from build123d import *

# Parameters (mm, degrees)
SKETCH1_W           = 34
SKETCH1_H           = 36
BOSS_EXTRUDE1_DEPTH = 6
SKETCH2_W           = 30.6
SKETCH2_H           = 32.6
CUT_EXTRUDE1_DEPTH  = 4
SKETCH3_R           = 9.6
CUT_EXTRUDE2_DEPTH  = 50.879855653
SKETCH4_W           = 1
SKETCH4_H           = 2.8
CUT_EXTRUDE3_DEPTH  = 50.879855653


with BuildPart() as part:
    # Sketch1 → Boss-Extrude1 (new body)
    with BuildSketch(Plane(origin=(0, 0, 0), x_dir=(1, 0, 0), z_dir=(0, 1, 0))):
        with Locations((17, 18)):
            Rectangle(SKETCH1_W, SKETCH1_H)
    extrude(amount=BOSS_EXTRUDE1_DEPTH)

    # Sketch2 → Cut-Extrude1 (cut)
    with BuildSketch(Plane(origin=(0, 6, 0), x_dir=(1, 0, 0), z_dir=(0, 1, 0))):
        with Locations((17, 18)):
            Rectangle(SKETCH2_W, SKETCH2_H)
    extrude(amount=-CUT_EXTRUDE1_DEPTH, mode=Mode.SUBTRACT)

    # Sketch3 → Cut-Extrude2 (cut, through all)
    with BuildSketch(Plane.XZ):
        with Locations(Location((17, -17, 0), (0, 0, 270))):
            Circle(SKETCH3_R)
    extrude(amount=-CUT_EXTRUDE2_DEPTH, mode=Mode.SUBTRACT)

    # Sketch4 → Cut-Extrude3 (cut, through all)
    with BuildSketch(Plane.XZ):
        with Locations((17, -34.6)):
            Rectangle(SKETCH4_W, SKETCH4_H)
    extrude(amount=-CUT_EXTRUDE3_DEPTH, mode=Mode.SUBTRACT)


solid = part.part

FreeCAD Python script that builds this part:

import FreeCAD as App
import Part
import Sketcher

V = App.Vector


def add_polygon(sketch, points):
    """Adds a closed chain of lines whose ends are joined by coincident constraints."""
    first, n = sketch.GeometryCount, len(points)
    for a, b in zip(points, points[1:] + points[:1]):
        sketch.addGeometry(Part.LineSegment(App.Vector(*a, 0), App.Vector(*b, 0)), False)
    for i in range(n):
        sketch.addConstraint(Sketcher.Constraint("Coincident", first + i, 2, first + (i + 1) % n, 1))

doc = App.newDocument("Part")
body = doc.addObject("PartDesign::Body", "Body")

sketch1 = body.newObject("Sketcher::SketchObject", "Sketch")
sketch1.AttachmentSupport = (doc.getObject("XZ_Plane"), [""])
sketch1.MapMode = "FlatFace"
add_polygon(sketch1, [(0, -36), (0, 0), (34, 0), (34, -36)])
sketch1.addConstraint([
    Sketcher.Constraint("Vertical", 0),
    Sketcher.Constraint("Horizontal", 1),
    Sketcher.Constraint("Vertical", 2),
    Sketcher.Constraint("Horizontal", 3),
    Sketcher.Constraint("Coincident", 0, 2, -1, 1),
    Sketcher.Constraint("DistanceX", 1, 1, 1, 2, 34.0),
    Sketcher.Constraint("DistanceY", 0, 1, 0, 2, 36.0),
])
pad1 = body.newObject("PartDesign::Pad", "Pad")
pad1.Profile = sketch1
pad1.Length = 6
pad1.Reversed = True

sketch2 = body.newObject("Sketcher::SketchObject", "Sketch001")
sketch2.AttachmentSupport = (doc.getObject("XZ_Plane"), [""])
sketch2.MapMode = "FlatFace"
sketch2.AttachmentOffset = App.Placement(V(0, 0, -6), App.Rotation())
add_polygon(sketch2, [(1.7, -34.3), (1.7, -1.7), (32.3, -1.7), (32.3, -34.3)])
sketch2.addConstraint([
    Sketcher.Constraint("Vertical", 0),
    Sketcher.Constraint("Horizontal", 1),
    Sketcher.Constraint("Vertical", 2),
    Sketcher.Constraint("Horizontal", 3),
    Sketcher.Constraint("DistanceX", 1, 1, 1, 2, 30.6),
    Sketcher.Constraint("DistanceY", 0, 1, 0, 2, 32.6),
    Sketcher.Constraint("DistanceX", -1, 1, 0, 2, 1.7),
    Sketcher.Constraint("DistanceY", 0, 2, -1, 1, 1.7),
])
pocket1 = body.newObject("PartDesign::Pocket", "Pocket")
pocket1.Profile = sketch2
pocket1.Length = 4
pocket1.Reversed = True

sketch3 = body.newObject("Sketcher::SketchObject", "Sketch002")
sketch3.AttachmentSupport = (doc.getObject("XZ_Plane"), [""])
sketch3.MapMode = "FlatFace"
sketch3.addGeometry(Part.Circle(V(17, -17, 0), V(0, 0, 1), 9.6), False)
sketch3.addConstraint([
    Sketcher.Constraint("Diameter", 0, 19.2),
    Sketcher.Constraint("DistanceX", -1, 1, 0, 3, 17.0),
    Sketcher.Constraint("DistanceY", 0, 3, -1, 1, 17.0),
])
pocket2 = body.newObject("PartDesign::Pocket", "Pocket001")
pocket2.Profile = sketch3
pocket2.Type = "ThroughAll"

sketch4 = body.newObject("Sketcher::SketchObject", "Sketch003")
sketch4.AttachmentSupport = (doc.getObject("XZ_Plane"), [""])
sketch4.MapMode = "FlatFace"
add_polygon(sketch4, [(16.5, -33.2), (16.5, -36), (17.5, -36), (17.5, -33.2)])
sketch4.addConstraint([
    Sketcher.Constraint("Vertical", 0),
    Sketcher.Constraint("Horizontal", 1),
    Sketcher.Constraint("Vertical", 2),
    Sketcher.Constraint("Horizontal", 3),
    Sketcher.Constraint("DistanceX", 1, 1, 1, 2, 1.0),
    Sketcher.Constraint("DistanceY", 0, 2, 0, 1, 2.8),
    Sketcher.Constraint("DistanceY", 0, 2, -1, 1, 36.0),
    Sketcher.Constraint("DistanceX", -1, 1, 0, 2, 16.5),
])
pocket3 = body.newObject("PartDesign::Pocket", "Pocket002")
pocket3.Profile = sketch4
pocket3.Type = "ThroughAll"

doc.recompute()
